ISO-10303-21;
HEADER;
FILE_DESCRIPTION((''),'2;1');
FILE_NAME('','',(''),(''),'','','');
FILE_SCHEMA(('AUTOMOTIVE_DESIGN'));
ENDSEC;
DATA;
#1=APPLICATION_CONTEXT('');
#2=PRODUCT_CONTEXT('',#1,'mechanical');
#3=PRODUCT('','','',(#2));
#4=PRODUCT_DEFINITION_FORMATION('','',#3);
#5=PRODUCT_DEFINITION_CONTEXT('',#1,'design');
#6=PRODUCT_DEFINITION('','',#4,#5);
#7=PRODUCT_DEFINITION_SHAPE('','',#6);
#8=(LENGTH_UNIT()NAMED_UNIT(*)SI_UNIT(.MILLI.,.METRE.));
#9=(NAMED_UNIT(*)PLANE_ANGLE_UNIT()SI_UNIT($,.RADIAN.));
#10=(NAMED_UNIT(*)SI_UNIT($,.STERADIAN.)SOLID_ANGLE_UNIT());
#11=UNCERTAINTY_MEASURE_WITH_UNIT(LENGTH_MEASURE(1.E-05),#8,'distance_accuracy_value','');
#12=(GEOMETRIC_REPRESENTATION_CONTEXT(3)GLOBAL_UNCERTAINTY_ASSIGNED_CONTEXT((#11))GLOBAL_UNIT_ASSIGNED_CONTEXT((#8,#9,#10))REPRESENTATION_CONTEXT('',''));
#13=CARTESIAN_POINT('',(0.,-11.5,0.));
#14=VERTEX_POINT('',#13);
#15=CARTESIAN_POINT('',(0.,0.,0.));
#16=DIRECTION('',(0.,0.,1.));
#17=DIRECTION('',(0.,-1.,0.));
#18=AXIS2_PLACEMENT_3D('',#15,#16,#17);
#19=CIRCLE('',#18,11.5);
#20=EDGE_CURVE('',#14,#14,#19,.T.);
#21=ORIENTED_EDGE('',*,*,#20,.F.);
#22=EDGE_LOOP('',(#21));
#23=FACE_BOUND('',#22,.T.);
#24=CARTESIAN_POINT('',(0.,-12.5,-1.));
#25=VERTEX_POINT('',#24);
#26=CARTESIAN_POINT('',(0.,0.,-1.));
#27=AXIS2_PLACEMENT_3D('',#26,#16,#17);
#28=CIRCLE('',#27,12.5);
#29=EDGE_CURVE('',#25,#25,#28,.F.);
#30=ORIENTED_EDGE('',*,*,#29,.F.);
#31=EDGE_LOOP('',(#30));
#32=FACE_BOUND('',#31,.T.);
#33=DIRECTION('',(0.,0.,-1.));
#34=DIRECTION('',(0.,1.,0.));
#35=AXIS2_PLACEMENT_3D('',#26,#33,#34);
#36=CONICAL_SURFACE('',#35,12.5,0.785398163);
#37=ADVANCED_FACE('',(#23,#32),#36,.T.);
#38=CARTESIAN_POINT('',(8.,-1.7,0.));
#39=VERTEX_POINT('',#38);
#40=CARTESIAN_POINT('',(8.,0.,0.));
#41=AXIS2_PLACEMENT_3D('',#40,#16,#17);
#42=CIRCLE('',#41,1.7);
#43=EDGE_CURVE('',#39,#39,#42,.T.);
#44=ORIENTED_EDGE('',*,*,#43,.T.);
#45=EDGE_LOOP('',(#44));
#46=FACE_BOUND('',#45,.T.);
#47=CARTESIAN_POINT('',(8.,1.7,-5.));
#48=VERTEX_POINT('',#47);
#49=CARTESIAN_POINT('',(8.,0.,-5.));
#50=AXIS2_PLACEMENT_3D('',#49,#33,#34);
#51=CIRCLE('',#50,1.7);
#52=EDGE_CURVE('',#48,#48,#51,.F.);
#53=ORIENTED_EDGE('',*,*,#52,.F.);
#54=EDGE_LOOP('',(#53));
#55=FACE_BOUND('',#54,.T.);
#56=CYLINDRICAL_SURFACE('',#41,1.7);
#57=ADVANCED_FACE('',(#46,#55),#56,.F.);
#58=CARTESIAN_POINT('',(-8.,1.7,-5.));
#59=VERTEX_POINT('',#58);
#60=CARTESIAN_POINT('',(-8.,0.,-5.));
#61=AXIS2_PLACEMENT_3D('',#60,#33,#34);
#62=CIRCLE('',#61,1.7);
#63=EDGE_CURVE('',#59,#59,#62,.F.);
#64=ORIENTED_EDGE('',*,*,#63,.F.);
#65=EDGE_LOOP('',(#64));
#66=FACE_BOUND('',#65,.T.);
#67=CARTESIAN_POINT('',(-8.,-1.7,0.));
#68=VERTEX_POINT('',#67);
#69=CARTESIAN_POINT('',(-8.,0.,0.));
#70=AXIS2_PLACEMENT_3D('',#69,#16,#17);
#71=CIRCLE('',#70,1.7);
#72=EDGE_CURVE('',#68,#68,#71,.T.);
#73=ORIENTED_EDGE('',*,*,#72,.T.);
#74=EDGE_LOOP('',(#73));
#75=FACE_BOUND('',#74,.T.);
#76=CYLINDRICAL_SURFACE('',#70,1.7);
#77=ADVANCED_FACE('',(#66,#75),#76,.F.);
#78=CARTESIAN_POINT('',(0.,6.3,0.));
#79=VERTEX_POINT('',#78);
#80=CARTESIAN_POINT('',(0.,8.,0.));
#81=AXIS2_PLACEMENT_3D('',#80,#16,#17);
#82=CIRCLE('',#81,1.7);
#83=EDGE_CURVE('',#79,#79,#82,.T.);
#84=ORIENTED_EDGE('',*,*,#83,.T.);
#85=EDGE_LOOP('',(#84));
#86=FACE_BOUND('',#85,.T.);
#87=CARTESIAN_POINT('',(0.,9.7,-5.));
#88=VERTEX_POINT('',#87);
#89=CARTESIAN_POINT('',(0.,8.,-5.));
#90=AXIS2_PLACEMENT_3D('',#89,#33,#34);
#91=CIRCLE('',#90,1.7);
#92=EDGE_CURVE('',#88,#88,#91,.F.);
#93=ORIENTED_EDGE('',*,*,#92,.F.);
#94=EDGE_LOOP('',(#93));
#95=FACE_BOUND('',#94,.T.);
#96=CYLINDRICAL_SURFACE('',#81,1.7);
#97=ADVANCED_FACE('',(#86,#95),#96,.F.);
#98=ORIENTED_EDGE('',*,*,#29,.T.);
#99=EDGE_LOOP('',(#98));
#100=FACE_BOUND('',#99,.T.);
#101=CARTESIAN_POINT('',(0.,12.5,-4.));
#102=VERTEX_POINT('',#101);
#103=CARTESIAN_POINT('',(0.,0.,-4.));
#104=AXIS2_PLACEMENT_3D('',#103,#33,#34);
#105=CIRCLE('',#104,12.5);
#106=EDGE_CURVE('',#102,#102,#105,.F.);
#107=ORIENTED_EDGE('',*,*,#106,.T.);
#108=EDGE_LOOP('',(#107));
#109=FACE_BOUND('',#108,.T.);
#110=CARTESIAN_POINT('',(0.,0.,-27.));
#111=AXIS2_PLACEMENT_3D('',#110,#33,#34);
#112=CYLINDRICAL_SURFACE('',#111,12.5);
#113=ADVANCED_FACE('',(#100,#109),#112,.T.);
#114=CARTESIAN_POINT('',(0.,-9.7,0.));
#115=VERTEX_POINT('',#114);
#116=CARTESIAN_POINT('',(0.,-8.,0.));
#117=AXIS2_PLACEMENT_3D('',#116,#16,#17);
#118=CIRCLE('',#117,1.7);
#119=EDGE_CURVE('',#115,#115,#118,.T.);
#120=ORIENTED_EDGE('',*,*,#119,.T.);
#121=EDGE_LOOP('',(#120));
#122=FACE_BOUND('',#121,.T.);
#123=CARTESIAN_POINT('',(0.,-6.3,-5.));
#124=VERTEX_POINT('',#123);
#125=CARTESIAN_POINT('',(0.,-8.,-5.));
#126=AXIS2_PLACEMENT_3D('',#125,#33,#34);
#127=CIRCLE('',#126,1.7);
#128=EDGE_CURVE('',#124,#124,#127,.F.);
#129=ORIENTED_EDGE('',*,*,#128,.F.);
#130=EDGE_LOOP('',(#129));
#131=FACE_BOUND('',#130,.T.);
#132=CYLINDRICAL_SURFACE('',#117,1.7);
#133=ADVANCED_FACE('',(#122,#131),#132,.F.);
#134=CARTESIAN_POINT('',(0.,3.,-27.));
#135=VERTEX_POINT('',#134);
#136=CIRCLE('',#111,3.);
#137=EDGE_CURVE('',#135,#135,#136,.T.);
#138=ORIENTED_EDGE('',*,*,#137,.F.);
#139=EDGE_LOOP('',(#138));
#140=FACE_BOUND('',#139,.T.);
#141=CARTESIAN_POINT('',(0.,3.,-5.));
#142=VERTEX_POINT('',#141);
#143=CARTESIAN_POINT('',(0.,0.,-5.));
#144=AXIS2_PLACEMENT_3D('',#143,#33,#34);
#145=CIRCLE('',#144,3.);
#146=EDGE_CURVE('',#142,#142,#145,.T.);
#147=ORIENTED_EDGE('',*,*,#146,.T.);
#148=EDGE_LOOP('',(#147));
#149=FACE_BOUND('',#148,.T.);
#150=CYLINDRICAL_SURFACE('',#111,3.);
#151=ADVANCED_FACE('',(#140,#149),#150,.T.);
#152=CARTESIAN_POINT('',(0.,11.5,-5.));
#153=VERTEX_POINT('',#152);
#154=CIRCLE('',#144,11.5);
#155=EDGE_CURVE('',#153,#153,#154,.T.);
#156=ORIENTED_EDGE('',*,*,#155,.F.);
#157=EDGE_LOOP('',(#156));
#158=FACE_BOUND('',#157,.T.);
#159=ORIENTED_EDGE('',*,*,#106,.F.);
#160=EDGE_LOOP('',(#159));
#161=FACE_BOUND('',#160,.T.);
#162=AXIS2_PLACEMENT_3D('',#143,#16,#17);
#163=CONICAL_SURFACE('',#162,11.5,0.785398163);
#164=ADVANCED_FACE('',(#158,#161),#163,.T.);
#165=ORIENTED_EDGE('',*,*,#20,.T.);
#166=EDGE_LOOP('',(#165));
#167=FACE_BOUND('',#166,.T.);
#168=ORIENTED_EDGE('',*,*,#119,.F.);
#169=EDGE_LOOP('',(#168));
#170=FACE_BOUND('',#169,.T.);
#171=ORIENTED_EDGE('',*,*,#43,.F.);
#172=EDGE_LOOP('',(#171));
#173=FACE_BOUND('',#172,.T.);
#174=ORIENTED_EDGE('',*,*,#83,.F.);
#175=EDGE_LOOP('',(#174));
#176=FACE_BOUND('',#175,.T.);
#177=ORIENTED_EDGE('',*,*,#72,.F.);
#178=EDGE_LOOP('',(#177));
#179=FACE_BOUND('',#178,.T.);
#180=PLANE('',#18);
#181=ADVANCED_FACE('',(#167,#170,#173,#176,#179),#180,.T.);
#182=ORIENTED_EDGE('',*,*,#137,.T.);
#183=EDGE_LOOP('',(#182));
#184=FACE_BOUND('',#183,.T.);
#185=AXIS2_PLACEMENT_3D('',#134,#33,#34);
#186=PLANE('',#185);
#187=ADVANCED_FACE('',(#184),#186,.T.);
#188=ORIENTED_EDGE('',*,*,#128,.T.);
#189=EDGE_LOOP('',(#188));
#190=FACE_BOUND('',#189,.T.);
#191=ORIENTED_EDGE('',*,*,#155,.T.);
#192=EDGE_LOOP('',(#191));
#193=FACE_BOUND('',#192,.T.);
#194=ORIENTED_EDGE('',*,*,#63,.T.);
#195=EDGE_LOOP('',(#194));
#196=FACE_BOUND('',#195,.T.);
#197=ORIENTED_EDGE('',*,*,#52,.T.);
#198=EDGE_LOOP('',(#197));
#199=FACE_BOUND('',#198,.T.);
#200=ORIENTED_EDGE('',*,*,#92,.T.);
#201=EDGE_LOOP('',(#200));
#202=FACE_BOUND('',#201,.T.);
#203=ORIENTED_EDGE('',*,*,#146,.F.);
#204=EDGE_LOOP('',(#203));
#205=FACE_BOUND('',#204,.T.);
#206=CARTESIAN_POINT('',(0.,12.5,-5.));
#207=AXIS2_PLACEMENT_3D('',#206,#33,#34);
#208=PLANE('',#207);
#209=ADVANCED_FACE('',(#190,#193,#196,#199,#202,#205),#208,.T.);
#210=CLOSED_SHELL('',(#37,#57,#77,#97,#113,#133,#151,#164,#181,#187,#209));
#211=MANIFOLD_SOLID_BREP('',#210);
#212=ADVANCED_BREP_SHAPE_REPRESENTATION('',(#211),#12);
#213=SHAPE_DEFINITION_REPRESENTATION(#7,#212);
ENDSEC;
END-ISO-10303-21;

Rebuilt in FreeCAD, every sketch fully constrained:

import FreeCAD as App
import Part
import Sketcher
Q = App.Units.Quantity


def edges_at(feature, points):
    """Names of the edges that pass closest to the given points."""
    edges = feature.Shape.Edges
    near = lambda p: min(range(len(edges)), key=lambda i: edges[i].distToShape(Part.Vertex(*p))[0])
    return sorted({f"Edge{near(p) + 1}" for p in points})


def add_polygon(sketch, points):
    """Adds a closed chain of lines whose ends are joined by coincident constraints."""
    first, n = sketch.GeometryCount, len(points)
    for a, b in zip(points, points[1:] + points[:1]):
        sketch.addGeometry(Part.LineSegment(App.Vector(*a, 0), App.Vector(*b, 0)), False)
    for i in range(n):
        sketch.addConstraint(Sketcher.Constraint("Coincident", first + i, 2, first + (i + 1) % n, 1))

doc = App.newDocument("Part")
body = doc.addObject("PartDesign::Body", "Body")

sketch1 = body.newObject("Sketcher::SketchObject", "Sketch")
sketch1.AttachmentSupport = (doc.getObject("YZ_Plane"), [""])
sketch1.MapMode = "FlatFace"
add_polygon(sketch1, [(12.5, 0), (0, 0), (0, -27), (3, -27), (3, -5), (12.5, -5)])
sketch1.addConstraint([
    Sketcher.Constraint("Horizontal", 0),
    Sketcher.Constraint("Vertical", 1),
    Sketcher.Constraint("Horizontal", 2),
    Sketcher.Constraint("Vertical", 3),
    Sketcher.Constraint("Horizontal", 4),
    Sketcher.Constraint("Vertical", 5),
    Sketcher.Constraint("Coincident", 0, 2, -1, 1),
    Sketcher.Constraint("DistanceX", 2, 1, 2, 2, Q("3 mm")),
    Sketcher.Constraint("DistanceY", 1, 2, 1, 1, Q("27 mm")),
    Sketcher.Constraint("DistanceY", 3, 1, 3, 2, Q("22 mm")),
    Sketcher.Constraint("DistanceX", 0, 2, 0, 1, Q("12.5 mm")),
])
revolution = body.newObject("PartDesign::Revolution", "Revolution")
revolution.Profile = sketch1
revolution.ReferenceAxis = (sketch1, ["V_Axis"])
revolution.Angle = 360

sketch2 = body.newObject("Sketcher::SketchObject", "Sketch001")
sketch2.AttachmentSupport = (doc.getObject("XY_Plane"), [""])
sketch2.MapMode = "FlatFace"
sketch2.addGeometry(Part.Circle(App.Vector(8, 0, 0), App.Vector(0, 0, 1), 1.7), False)
sketch2.addConstraint([
    Sketcher.Constraint("PointOnObject", 0, 3, -1),
    Sketcher.Constraint("Diameter", 0, Q("3.4 mm")),
    Sketcher.Constraint("DistanceX", -1, 1, 0, 3, Q("8 mm")),
])
doc.recompute()
hole = body.newObject("PartDesign::Hole", "Hole")
hole.Profile = sketch2
hole.ThreadType = "None"
hole.Diameter = 3.4
hole.DepthType = "ThroughAll"
doc.recompute()

polarpattern = body.newObject("PartDesign::PolarPattern", "PolarPattern")
polarpattern.Originals = [hole]
polarpattern.Axis = (doc.getObject("Z_Axis"), [""])
polarpattern.Angle = 360
polarpattern.Occurrences = 4
body.Tip = polarpattern
doc.recompute()

chamfer = body.newObject("PartDesign::Chamfer", "Chamfer")
chamfer.Base = (polarpattern, edges_at(polarpattern, [(0, -12.5, -5), (0, -12.5, 0)]))
chamfer.Size = 1

doc.recompute()
